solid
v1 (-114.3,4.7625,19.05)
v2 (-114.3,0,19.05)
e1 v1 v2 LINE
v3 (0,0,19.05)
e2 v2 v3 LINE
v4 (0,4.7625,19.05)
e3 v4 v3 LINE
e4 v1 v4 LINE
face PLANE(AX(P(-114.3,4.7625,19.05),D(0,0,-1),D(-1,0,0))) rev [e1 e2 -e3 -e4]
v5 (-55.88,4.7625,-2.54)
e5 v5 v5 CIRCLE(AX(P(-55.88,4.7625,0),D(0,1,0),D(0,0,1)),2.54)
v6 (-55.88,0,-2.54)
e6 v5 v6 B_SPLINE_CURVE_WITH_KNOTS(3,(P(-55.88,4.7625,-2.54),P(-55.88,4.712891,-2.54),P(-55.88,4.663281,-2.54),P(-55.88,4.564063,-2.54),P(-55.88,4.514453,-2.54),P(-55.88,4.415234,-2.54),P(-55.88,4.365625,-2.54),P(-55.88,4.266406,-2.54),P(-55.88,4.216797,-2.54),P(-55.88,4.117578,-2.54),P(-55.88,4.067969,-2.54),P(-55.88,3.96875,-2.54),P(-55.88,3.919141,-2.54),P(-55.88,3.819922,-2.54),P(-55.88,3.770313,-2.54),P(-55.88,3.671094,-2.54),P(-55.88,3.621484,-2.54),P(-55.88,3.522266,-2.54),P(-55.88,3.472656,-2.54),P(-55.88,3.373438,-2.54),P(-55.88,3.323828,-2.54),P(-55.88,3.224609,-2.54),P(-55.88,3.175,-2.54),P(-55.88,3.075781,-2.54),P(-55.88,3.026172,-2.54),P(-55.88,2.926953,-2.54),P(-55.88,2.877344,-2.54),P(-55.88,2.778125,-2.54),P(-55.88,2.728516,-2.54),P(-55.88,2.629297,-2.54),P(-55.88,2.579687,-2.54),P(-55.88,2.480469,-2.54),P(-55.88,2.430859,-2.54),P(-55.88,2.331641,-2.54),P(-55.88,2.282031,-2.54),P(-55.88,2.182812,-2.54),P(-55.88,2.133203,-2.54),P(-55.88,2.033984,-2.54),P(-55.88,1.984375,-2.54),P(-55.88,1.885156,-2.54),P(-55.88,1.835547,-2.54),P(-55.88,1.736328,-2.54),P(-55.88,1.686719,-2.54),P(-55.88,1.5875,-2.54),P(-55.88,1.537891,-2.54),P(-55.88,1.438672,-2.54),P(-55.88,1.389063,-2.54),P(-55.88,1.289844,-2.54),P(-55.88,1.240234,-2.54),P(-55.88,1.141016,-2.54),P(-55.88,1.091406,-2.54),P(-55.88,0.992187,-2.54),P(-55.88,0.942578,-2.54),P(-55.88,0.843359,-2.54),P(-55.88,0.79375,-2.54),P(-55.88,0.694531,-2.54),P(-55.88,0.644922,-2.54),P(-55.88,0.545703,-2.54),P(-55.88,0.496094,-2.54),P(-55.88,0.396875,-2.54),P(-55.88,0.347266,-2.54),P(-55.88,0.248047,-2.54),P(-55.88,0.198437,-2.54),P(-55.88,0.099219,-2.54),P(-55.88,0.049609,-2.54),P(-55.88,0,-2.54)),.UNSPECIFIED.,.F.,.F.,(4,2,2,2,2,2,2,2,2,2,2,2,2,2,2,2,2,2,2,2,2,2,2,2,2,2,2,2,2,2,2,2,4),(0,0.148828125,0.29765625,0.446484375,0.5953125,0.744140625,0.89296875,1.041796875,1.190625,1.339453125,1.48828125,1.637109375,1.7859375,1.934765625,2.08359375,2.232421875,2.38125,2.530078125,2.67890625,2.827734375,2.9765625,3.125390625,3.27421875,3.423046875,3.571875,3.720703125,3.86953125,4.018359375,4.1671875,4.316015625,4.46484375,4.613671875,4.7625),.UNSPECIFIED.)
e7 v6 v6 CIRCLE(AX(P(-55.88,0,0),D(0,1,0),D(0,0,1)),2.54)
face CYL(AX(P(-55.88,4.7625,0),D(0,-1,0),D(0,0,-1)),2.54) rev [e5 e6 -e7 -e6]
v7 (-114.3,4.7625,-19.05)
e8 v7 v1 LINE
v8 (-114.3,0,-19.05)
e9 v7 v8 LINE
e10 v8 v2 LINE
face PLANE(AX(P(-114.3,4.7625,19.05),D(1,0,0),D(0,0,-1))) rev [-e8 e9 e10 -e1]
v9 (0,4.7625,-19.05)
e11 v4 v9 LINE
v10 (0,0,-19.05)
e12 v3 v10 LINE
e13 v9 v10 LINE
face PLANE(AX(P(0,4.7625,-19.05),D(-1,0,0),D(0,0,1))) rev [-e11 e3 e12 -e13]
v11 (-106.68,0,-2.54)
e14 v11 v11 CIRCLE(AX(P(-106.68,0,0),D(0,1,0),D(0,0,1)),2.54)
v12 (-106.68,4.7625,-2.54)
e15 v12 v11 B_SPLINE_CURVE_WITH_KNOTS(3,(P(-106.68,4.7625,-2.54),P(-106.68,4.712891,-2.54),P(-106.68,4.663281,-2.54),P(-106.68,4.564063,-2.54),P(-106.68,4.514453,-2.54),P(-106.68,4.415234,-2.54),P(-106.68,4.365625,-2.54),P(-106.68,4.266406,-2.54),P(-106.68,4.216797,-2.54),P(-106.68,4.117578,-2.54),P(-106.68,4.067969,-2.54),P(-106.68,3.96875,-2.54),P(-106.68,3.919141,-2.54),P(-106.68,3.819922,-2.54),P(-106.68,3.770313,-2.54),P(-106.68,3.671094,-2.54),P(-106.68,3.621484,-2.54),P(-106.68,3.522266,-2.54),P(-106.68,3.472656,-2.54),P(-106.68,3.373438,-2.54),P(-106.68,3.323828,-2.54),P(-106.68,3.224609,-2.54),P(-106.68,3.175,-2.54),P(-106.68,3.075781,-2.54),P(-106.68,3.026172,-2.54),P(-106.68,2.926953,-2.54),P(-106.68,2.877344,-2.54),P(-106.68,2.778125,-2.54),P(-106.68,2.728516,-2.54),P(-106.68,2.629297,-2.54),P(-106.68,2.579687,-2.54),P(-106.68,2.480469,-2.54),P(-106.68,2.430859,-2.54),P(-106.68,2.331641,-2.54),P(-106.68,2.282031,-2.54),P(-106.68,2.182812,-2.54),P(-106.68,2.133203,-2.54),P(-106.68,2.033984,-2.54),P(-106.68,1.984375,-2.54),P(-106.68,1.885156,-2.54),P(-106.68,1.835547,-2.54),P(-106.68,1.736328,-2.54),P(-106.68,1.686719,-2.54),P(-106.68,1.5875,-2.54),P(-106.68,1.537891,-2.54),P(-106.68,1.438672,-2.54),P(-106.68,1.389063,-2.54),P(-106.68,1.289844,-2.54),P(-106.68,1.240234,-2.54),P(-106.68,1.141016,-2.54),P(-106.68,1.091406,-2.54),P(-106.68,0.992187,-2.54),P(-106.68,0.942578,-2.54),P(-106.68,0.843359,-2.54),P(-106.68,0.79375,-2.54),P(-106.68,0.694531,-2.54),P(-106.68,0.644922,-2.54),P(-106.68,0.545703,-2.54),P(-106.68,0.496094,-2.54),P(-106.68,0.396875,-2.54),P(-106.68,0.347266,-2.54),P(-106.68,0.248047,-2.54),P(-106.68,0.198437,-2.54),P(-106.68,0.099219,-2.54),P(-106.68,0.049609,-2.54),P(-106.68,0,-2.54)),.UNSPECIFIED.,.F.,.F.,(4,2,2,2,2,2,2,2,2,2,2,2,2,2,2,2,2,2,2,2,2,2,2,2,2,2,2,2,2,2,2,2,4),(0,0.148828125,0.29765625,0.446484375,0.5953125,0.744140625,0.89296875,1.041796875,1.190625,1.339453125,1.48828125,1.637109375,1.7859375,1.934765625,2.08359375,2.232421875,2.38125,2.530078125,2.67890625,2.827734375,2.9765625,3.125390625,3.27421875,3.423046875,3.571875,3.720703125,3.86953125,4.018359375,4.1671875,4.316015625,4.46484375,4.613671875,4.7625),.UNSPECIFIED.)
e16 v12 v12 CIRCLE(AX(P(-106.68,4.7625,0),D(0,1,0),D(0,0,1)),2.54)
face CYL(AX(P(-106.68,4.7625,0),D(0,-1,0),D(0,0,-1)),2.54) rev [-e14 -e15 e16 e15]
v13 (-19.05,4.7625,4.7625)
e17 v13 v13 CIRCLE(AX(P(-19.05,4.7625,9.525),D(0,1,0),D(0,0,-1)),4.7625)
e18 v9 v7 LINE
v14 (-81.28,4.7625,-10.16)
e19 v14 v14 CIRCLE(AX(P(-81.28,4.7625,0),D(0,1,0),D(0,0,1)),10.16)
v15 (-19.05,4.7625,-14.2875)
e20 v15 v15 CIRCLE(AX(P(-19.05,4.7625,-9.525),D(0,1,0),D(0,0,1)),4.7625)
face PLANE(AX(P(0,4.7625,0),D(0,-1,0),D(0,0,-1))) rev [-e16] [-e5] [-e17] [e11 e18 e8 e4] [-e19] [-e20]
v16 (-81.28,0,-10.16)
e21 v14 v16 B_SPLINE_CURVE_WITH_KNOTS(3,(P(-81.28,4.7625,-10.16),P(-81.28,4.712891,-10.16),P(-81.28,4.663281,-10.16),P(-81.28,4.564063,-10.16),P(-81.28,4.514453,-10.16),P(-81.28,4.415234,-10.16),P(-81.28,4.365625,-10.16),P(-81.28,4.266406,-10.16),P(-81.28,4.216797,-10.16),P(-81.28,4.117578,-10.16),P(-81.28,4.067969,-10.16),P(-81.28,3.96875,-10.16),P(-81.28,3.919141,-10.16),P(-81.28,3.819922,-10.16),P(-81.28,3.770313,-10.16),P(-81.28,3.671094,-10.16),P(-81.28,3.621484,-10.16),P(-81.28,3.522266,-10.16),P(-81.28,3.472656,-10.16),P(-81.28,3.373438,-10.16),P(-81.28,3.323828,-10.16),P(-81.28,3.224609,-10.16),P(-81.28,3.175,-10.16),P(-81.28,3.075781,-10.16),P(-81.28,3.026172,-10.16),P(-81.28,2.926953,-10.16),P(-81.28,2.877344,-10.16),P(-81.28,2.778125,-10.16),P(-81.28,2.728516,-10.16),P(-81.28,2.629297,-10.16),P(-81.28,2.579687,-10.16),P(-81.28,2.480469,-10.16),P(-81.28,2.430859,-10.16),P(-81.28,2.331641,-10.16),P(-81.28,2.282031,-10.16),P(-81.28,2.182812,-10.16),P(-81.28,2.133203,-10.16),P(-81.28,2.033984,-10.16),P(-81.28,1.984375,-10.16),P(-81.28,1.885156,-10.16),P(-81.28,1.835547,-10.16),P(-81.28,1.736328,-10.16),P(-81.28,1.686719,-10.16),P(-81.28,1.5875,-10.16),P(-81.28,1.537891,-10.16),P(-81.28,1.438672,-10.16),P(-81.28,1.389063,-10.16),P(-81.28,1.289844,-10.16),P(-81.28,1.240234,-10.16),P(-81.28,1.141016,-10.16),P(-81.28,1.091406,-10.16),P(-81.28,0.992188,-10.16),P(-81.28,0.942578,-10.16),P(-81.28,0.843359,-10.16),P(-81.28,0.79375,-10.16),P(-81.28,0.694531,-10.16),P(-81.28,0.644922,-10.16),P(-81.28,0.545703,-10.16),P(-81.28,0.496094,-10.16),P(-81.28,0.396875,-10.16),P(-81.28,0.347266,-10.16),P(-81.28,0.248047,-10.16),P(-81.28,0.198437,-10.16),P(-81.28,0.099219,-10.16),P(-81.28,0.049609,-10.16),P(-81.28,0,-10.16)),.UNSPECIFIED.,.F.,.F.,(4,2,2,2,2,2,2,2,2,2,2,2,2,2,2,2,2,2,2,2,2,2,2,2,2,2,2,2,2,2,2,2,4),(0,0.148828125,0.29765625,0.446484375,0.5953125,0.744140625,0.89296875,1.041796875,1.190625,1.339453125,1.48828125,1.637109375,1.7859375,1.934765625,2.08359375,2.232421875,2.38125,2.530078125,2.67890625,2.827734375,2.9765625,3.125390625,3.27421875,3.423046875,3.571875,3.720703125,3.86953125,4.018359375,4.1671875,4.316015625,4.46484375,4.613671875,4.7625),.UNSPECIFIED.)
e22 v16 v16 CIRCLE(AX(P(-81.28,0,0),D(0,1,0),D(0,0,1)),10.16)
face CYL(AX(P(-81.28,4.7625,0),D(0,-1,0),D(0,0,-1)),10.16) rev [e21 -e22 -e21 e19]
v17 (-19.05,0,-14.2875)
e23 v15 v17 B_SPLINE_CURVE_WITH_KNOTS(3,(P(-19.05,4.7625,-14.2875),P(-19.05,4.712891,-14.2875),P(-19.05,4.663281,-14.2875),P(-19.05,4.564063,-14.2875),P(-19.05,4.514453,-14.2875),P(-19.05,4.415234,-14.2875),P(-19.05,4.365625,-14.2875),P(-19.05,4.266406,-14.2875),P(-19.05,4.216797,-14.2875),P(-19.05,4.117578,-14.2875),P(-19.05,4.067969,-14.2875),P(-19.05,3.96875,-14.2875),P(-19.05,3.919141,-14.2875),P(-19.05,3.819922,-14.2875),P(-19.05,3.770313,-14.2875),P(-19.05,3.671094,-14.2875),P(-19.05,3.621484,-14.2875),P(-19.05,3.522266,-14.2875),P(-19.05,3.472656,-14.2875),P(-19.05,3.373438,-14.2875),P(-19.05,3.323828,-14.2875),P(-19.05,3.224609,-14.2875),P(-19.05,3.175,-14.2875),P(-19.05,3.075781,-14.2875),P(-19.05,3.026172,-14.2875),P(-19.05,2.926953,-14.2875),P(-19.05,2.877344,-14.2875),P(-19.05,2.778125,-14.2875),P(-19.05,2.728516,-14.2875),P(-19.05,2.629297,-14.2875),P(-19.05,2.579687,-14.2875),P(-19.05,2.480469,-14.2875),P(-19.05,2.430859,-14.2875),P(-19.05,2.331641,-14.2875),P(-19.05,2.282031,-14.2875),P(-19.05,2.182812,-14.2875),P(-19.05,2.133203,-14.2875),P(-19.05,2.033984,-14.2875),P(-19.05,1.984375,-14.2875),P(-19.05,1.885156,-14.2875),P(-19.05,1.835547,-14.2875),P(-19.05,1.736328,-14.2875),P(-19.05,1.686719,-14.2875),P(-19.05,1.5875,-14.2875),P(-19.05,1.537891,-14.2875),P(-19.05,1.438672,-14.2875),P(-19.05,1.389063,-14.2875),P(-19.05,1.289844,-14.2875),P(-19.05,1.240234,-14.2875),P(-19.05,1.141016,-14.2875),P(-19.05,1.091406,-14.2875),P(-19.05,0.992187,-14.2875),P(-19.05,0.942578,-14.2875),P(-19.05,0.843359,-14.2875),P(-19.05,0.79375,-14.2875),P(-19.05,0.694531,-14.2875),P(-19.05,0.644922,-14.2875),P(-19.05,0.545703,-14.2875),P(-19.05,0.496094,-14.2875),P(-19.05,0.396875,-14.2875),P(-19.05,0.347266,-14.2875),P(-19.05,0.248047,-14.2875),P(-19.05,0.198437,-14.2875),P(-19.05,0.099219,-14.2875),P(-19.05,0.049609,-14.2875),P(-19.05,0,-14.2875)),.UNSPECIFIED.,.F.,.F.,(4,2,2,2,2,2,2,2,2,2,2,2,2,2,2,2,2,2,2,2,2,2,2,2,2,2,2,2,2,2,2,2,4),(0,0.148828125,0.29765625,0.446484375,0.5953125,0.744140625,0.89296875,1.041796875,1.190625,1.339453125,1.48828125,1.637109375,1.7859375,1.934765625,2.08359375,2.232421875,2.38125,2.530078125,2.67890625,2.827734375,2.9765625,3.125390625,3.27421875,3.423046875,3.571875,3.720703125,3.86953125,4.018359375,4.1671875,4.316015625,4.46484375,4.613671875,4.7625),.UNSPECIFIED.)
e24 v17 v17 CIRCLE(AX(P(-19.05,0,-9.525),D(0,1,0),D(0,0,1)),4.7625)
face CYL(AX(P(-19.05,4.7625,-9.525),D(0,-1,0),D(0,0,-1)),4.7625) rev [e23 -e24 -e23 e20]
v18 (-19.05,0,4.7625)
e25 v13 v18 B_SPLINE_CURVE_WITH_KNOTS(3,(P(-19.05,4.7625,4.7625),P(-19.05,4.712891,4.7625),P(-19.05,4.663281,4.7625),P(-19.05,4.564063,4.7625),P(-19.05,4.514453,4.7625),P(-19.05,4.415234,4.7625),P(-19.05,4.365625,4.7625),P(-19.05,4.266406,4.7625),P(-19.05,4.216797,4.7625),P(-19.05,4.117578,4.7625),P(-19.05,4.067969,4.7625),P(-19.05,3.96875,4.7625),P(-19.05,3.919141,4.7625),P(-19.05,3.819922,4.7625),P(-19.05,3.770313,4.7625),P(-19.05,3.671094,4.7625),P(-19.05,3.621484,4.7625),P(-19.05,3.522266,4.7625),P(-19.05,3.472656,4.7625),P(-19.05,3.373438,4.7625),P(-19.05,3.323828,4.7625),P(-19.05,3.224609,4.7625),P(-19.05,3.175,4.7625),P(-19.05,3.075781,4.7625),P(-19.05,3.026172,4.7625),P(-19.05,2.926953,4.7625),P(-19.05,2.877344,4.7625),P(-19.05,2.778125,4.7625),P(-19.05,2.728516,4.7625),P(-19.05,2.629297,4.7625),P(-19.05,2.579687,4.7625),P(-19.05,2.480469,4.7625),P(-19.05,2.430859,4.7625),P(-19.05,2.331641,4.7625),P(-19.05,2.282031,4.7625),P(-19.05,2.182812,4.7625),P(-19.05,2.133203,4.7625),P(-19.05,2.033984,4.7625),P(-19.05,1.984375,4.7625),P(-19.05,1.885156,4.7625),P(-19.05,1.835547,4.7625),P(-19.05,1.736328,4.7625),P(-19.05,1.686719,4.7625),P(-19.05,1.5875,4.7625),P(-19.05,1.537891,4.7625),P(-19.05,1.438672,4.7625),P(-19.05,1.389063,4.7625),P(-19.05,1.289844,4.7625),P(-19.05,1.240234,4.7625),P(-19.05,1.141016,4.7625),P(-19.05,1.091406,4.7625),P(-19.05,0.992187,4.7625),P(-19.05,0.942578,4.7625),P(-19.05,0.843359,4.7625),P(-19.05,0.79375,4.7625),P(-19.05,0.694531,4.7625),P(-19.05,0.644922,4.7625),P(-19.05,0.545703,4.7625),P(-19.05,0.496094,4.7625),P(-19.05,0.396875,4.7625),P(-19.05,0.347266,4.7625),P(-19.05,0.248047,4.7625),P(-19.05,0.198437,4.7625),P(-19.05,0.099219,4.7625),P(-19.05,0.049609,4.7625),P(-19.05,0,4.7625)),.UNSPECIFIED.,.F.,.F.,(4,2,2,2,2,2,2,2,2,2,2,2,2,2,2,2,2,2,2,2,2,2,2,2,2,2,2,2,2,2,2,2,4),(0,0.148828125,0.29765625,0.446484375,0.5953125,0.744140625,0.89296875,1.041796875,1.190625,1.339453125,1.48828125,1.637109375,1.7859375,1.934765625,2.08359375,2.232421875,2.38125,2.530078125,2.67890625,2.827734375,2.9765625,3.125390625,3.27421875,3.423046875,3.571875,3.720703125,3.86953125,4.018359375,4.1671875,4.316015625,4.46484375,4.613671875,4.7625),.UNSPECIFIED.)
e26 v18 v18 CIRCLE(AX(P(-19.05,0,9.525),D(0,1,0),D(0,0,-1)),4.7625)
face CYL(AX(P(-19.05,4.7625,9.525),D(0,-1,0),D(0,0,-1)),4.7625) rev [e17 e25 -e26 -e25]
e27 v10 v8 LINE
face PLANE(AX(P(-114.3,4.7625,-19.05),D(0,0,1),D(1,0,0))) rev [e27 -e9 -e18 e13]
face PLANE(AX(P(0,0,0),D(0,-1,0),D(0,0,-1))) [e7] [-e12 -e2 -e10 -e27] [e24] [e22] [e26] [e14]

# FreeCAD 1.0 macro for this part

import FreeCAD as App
import Part
import Sketcher

V = App.Vector
Q = App.Units.Quantity


def add_polygon(sketch, points):
    """Adds a closed chain of lines whose ends are joined by coincident constraints."""
    first, n = sketch.GeometryCount, len(points)
    for a, b in zip(points, points[1:] + points[:1]):
        sketch.addGeometry(Part.LineSegment(App.Vector(*a, 0), App.Vector(*b, 0)), False)
    for i in range(n):
        sketch.addConstraint(Sketcher.Constraint("Coincident", first + i, 2, first + (i + 1) % n, 1))

doc = App.newDocument("Part")
body = doc.addObject("PartDesign::Body", "Body")

sketch1 = body.newObject("Sketcher::SketchObject", "Sketch")
sketch1.AttachmentSupport = (doc.getObject("XZ_Plane"), [""])
sketch1.MapMode = "FlatFace"
add_polygon(sketch1, [(-114.3, -19.05), (-114.3, 19.05), (0, 19.05), (0, -19.05)])
sketch1.addGeometry(Part.Circle(V(-19.05, 9.525, 0), V(0, 0, 1), 4.7625), False)
sketch1.addGeometry(Part.Circle(V(-106.68, 0, 0), V(0, 0, 1), 2.54), False)
sketch1.addGeometry(Part.Circle(V(-81.28, 0, 0), V(0, 0, 1), 10.16), False)
sketch1.addGeometry(Part.Circle(V(-55.88, 0, 0), V(0, 0, 1), 2.54), False)
sketch1.addGeometry(Part.Circle(V(-19.05, -9.525, 0), V(0, 0, 1), 4.7625), False)
sketch1.addConstraint([
    Sketcher.Constraint("Vertical", 0),
    Sketcher.Constraint("Horizontal", 1),
    Sketcher.Constraint("Vertical", 2),
    Sketcher.Constraint("Horizontal", 3),
    Sketcher.Constraint("Equal", 5, 7),
    Sketcher.Constraint("Equal", 4, 8),
    Sketcher.Constraint("Symmetric", 1, 2, 2, 2, -1, 1),
    Sketcher.Constraint("Symmetric", 4, 3, 8, 3, -1),
    Sketcher.Constraint("PointOnObject", 5, 3, -1),
    Sketcher.Constraint("PointOnObject", 6, 3, -1),
    Sketcher.Constraint("PointOnObject", 7, 3, -1),
    Sketcher.Constraint("Diameter", 5, Q("0.2 in")),
    Sketcher.Constraint("Diameter", 6, Q("0.8 in")),
    Sketcher.Constraint("Diameter", 4, Q("0.375 in")),
    Sketcher.Constraint("DistanceX", 1, 1, 1, 2, Q("4.5 in")),
    Sketcher.Constraint("DistanceY", 0, 1, 0, 2, Q("1.5 in")),
    Sketcher.Constraint("DistanceX", 5, 3, 6, 3, Q("1 in")),
    Sketcher.Constraint("DistanceX", 6, 3, 7, 3, Q("1 in")),
    Sketcher.Constraint("DistanceX", 5, 3, -1, 1, Q("4.2 in")),
    Sketcher.Constraint("DistanceX", 4, 3, -1, 1, Q("0.75 in")),
    Sketcher.Constraint("DistanceY", 8, 3, 4, 3, Q("0.75 in")),
])
pad1 = body.newObject("PartDesign::Pad", "Pad")
pad1.Profile = sketch1
pad1.Length = Q("0.1875 in")
pad1.Reversed = True

doc.recompute()
